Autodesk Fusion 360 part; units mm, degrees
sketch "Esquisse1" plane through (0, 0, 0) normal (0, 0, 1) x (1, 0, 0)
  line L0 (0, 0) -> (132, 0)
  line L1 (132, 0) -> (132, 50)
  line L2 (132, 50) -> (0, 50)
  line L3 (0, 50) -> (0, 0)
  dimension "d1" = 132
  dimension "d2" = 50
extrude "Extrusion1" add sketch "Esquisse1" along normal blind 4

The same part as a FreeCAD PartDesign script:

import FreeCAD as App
import Part
import Sketcher
Q = App.Units.Quantity

doc = App.newDocument("Part")
body = doc.addObject("PartDesign::Body", "Body")

# Sketch on XY plane
sketch1 = body.newObject("Sketcher::SketchObject", "Sketch")
sketch1.AttachmentSupport = (doc.getObject("XY_Plane"), [""])
sketch1.MapMode = "FlatFace"
sketch1.addGeometry([
    Part.LineSegment(App.Vector(0, 50, 0), App.Vector(0, 0, 0)),
    Part.LineSegment(App.Vector(0, 0, 0), App.Vector(132, 0, 0)),
    Part.LineSegment(App.Vector(132, 0, 0), App.Vector(132, 50, 0)),
    Part.LineSegment(App.Vector(132, 50, 0), App.Vector(0, 50, 0)),
], False)
sketch1.addConstraint([
    Sketcher.Constraint("Coincident", 0, 2, 1, 1),
    Sketcher.Constraint("Coincident", 1, 2, 2, 1),
    Sketcher.Constraint("Coincident", 2, 2, 3, 1),
    Sketcher.Constraint("Coincident", 3, 2, 0, 1),
    Sketcher.Constraint("Vertical", 0),
    Sketcher.Constraint("Horizontal", 1),
    Sketcher.Constraint("Vertical", 2),
    Sketcher.Constraint("Horizontal", 3),
    Sketcher.Constraint("Coincident", 0, 2, -1, 1),
    Sketcher.Constraint("DistanceX", 1, 1, 1, 2, Q("132 mm")),
    Sketcher.Constraint("DistanceY", 0, 2, 0, 1, Q("50 mm")),
])
pad1 = body.newObject("PartDesign::Pad", "Pad")
pad1.Profile = sketch1
pad1.Length = 4

doc.recompute()
